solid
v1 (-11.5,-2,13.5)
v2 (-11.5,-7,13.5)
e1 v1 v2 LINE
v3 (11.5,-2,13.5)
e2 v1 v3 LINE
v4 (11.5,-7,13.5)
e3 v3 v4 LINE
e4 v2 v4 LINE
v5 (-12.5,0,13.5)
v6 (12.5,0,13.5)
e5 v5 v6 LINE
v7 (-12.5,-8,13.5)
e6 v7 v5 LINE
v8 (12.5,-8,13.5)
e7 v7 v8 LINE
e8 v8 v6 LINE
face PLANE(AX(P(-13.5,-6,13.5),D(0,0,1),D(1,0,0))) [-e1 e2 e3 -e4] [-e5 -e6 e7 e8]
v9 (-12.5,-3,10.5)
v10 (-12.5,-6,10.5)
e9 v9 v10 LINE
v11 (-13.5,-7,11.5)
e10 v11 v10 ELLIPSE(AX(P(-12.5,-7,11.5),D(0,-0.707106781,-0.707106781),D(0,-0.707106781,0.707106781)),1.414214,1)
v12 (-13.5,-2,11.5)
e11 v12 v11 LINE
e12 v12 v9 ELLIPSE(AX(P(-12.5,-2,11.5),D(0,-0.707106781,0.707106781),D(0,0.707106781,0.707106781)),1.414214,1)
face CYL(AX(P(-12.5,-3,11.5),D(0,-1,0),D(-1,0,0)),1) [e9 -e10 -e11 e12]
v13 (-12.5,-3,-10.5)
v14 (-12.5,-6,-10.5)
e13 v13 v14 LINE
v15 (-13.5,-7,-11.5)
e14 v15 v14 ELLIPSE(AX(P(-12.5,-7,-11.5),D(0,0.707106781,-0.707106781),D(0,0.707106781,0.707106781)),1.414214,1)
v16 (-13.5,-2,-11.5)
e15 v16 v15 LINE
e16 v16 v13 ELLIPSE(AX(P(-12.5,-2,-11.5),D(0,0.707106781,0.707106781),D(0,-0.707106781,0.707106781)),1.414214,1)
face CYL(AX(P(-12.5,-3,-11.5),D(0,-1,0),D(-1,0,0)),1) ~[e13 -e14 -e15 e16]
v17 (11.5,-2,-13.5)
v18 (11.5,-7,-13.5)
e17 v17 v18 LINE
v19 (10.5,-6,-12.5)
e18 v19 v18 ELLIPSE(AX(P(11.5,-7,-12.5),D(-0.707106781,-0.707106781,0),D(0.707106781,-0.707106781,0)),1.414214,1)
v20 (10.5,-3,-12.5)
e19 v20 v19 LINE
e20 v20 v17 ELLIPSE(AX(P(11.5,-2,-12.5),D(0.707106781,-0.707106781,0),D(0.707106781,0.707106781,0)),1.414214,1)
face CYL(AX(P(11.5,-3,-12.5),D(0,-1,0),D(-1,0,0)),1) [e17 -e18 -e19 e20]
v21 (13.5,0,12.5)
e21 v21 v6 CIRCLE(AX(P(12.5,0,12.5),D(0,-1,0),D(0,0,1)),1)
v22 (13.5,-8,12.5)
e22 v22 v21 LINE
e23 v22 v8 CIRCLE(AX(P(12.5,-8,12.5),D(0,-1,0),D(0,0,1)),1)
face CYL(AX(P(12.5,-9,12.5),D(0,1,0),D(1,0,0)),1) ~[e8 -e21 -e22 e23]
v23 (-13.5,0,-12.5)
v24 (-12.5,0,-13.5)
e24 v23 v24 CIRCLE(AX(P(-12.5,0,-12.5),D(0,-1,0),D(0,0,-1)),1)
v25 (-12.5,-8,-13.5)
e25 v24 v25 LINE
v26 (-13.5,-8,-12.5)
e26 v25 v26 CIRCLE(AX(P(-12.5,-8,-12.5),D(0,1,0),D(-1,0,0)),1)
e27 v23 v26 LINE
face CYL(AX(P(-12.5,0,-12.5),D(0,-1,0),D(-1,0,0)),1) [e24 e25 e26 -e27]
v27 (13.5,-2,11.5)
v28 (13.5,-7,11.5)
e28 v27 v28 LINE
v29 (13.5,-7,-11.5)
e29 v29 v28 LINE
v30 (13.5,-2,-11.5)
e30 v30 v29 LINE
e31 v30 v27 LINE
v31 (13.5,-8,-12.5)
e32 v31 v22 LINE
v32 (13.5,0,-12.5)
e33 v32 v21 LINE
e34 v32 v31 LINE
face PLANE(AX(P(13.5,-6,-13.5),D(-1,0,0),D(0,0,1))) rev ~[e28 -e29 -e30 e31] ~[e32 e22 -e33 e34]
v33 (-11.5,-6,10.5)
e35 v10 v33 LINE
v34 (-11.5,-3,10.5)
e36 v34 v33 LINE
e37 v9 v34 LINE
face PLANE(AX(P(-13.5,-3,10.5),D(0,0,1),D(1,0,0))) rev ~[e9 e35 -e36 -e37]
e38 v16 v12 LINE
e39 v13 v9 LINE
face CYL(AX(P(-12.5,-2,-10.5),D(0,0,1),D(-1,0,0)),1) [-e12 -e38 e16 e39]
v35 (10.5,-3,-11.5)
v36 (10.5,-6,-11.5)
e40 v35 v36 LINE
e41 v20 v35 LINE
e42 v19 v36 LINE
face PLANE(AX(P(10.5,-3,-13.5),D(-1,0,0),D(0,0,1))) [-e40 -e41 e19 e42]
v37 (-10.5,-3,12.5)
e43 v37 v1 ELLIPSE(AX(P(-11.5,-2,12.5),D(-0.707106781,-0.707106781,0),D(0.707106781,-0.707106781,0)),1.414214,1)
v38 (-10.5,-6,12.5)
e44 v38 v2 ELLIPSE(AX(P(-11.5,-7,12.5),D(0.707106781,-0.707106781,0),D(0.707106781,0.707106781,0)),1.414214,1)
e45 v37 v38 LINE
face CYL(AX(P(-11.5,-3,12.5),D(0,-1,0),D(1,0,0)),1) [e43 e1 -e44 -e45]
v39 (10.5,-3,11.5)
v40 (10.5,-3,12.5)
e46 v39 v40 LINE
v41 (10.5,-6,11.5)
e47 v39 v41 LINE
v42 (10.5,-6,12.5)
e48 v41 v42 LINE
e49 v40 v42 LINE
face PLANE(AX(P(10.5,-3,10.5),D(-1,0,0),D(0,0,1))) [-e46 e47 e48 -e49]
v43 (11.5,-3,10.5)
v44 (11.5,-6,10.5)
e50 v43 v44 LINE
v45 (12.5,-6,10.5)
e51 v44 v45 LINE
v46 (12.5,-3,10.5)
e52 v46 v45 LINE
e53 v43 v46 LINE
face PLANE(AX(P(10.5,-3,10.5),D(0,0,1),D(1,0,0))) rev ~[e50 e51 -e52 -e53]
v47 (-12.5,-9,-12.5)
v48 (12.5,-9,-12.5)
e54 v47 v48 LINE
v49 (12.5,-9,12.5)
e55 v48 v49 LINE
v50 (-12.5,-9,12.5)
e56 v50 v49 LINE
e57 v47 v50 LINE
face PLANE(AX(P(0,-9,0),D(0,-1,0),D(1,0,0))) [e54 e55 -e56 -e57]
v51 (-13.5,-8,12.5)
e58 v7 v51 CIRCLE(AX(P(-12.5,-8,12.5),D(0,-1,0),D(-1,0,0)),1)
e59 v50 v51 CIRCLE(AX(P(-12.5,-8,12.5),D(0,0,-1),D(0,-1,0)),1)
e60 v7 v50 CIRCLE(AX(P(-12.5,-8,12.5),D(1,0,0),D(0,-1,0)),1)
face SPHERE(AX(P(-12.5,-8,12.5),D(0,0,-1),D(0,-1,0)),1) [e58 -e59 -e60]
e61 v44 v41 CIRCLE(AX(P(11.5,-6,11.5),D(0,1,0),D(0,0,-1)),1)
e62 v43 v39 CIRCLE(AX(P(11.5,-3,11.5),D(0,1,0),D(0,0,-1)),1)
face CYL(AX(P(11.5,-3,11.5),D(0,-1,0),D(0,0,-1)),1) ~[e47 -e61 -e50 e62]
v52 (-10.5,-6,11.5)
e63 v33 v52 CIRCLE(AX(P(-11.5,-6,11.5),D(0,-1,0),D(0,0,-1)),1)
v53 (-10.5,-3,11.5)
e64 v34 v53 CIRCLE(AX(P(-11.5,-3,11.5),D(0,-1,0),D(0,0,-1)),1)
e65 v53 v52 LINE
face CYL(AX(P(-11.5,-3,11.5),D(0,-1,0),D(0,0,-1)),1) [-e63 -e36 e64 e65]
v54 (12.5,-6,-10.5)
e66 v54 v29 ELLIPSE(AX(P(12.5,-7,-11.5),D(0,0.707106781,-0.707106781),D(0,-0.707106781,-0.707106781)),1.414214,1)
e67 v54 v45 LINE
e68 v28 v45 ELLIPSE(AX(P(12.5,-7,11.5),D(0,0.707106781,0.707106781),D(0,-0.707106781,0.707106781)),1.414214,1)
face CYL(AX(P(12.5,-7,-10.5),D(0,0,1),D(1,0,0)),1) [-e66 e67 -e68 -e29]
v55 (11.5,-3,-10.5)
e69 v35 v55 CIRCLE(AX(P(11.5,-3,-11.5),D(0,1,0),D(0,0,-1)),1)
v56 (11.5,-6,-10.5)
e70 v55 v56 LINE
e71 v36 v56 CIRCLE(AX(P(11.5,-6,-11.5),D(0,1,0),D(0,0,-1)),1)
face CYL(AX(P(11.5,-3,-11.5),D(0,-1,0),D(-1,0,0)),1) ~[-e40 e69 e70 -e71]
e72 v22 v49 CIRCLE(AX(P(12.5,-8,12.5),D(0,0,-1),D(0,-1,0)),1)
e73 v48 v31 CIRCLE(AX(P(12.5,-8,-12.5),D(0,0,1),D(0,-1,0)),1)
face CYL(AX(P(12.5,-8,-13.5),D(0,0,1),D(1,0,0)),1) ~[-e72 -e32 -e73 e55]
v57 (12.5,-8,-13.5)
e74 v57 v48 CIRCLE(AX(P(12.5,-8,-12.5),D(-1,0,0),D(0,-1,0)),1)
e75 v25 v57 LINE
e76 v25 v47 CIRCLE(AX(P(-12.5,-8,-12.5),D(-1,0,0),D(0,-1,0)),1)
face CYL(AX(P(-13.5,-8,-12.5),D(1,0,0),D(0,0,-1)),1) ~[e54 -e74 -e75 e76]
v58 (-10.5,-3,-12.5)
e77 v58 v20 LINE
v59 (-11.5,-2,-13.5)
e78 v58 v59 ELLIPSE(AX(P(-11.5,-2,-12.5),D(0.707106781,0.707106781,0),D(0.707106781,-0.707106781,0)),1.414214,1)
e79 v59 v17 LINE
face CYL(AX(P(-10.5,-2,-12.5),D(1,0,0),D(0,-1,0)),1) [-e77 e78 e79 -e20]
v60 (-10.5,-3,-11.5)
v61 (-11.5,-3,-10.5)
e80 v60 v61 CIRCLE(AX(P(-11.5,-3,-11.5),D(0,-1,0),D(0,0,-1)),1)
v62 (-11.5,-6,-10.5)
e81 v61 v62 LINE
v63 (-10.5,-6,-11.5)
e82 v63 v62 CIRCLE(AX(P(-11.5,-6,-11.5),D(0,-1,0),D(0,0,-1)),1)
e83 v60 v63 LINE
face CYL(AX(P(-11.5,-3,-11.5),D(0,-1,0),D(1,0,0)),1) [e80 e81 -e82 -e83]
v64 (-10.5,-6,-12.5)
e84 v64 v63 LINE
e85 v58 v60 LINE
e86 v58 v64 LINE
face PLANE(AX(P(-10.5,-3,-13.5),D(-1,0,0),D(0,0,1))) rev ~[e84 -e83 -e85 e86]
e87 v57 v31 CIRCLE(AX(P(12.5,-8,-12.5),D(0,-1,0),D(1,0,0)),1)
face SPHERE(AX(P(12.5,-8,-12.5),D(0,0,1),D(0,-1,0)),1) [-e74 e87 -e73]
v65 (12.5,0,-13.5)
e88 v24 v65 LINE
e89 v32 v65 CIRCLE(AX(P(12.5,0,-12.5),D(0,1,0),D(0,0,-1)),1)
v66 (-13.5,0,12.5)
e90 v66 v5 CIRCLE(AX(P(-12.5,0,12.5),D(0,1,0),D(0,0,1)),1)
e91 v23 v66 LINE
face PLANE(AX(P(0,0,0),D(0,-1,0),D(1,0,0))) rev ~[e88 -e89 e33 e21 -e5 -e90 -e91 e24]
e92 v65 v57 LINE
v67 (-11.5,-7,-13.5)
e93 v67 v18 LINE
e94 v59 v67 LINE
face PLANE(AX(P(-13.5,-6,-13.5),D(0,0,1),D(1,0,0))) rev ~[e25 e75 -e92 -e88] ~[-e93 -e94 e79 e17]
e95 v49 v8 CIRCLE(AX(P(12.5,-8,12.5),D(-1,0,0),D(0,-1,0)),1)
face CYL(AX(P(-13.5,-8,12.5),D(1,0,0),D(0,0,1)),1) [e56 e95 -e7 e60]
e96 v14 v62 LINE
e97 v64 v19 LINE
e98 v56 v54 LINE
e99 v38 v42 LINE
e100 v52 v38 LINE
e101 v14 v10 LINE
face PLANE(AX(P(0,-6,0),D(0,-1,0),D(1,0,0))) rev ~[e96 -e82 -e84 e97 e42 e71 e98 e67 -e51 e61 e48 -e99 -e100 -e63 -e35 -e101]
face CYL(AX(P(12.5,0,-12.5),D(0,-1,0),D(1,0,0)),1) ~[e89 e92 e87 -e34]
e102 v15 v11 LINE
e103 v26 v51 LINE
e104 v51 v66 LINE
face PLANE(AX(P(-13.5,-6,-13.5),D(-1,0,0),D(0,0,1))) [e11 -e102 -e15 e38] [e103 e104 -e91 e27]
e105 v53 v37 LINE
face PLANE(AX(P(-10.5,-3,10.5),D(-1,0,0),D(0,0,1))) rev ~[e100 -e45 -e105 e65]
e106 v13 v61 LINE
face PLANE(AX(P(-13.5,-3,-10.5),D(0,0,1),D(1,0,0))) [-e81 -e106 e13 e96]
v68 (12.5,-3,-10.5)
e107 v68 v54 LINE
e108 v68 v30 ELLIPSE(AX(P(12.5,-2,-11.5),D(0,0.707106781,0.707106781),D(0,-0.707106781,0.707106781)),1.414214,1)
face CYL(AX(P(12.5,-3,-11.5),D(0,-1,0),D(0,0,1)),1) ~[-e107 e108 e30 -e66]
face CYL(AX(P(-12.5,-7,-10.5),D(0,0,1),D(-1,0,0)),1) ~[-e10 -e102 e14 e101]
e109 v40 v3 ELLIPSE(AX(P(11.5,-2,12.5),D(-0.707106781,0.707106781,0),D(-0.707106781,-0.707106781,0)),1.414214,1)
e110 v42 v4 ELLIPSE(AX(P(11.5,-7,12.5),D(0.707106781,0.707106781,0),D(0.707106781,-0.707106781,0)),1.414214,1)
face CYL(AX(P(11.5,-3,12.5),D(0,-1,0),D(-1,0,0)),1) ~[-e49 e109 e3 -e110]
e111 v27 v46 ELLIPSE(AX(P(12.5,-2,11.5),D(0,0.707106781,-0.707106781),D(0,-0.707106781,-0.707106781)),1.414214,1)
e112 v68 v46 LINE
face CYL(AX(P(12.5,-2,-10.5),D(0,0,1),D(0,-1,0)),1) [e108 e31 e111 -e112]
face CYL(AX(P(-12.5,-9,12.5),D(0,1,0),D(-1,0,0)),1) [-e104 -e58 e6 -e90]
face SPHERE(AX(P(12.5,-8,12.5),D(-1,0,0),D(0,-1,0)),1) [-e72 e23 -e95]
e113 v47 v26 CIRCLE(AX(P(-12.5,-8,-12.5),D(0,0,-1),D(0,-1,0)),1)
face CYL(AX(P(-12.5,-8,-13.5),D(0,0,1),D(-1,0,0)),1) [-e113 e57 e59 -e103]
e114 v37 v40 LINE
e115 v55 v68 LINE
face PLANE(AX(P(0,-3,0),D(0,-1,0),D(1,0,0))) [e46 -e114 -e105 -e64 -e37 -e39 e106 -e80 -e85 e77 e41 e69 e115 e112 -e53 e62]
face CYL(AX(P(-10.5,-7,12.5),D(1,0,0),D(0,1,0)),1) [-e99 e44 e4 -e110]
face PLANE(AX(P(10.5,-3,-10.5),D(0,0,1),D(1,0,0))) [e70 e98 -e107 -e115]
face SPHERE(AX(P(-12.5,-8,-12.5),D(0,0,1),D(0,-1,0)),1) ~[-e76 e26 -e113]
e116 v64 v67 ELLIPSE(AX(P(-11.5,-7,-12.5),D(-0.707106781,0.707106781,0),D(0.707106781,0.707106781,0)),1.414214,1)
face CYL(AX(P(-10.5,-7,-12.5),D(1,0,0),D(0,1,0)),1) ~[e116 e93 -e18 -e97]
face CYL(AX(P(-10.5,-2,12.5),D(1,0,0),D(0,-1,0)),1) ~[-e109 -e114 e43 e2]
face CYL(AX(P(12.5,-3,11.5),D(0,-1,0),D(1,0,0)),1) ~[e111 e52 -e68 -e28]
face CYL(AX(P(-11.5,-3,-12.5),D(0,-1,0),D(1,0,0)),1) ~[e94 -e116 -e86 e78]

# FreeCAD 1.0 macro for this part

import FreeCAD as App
import Part
import Sketcher


def edges_at(feature, points):
    """Names of the edges that pass closest to the given points."""
    edges = feature.Shape.Edges
    near = lambda p: min(range(len(edges)), key=lambda i: edges[i].distToShape(Part.Vertex(*p))[0])
    return sorted({f"Edge{near(p) + 1}" for p in points})

doc = App.newDocument("Part")
body = doc.addObject("PartDesign::Body", "Body")

# Sketch on XZ plane
sketch1 = body.newObject("Sketcher::SketchObject", "Sketch")
sketch1.AttachmentSupport = (doc.getObject("XZ_Plane"), [""])
sketch1.MapMode = "FlatFace"
sketch1.addGeometry([
    Part.LineSegment(App.Vector(-14, 14, 0), App.Vector(-14, -14, 0)),
    Part.LineSegment(App.Vector(-14, -14, 0), App.Vector(14, -14, 0)),
    Part.LineSegment(App.Vector(14, -14, 0), App.Vector(14, 14, 0)),
    Part.LineSegment(App.Vector(14, 14, 0), App.Vector(-14, 14, 0)),
], False)
sketch1.addConstraint([
    Sketcher.Constraint("Coincident", 0, 2, 1, 1),
    Sketcher.Constraint("Coincident", 1, 2, 2, 1),
    Sketcher.Constraint("Coincident", 2, 2, 3, 1),
    Sketcher.Constraint("Coincident", 3, 2, 0, 1),
    Sketcher.Constraint("Vertical", 0),
    Sketcher.Constraint("Horizontal", 1),
    Sketcher.Constraint("Vertical", 2),
    Sketcher.Constraint("Horizontal", 3),
    Sketcher.Constraint("Symmetric", 0, 2, 2, 2, -1, 1),
    Sketcher.Constraint("Equal", 3, 0),
    Sketcher.Constraint("DistanceX", 1, 1, 1, 2, 27.0),
])
pad1 = body.newObject("PartDesign::Pad", "Pad")
pad1.Profile = sketch1
pad1.Length = 3

# Sketch on XZ plane
sketch2 = body.newObject("Sketcher::SketchObject", "Sketch001")
sketch2.AttachmentSupport = (doc.getObject("XZ_Plane"), [""])
sketch2.MapMode = "FlatFace"
sketch2.AttachmentOffset = App.Placement(App.Vector(0, 0, 3), App.Rotation())
sketch2.addGeometry([
    Part.LineSegment(App.Vector(-13.5, 13.5, 0), App.Vector(-13.5, 10.5, 0)),  # 0
    Part.LineSegment(App.Vector(-13.5, 10.5, 0), App.Vector(-10.5, 10.5, 0)),  # 1
    Part.LineSegment(App.Vector(-10.5, 10.5, 0), App.Vector(-10.5, 13.5, 0)),  # 2
    Part.LineSegment(App.Vector(-10.5, 13.5, 0), App.Vector(-13.5, 13.5, 0)),  # 3
    Part.LineSegment(App.Vector(10.5, 13.5, 0), App.Vector(10.5, 10.5, 0)),  # 4
    Part.LineSegment(App.Vector(10.5, 10.5, 0), App.Vector(13.5, 10.5, 0)),  # 5
    Part.LineSegment(App.Vector(13.5, 10.5, 0), App.Vector(13.5, 13.5, 0)),  # 6
    Part.LineSegment(App.Vector(13.5, 13.5, 0), App.Vector(10.5, 13.5, 0)),  # 7
    Part.LineSegment(App.Vector(10.5, -10.5, 0), App.Vector(10.5, -13.5, 0)),  # 8
    Part.LineSegment(App.Vector(10.5, -13.5, 0), App.Vector(13.5, -13.5, 0)),  # 9
    Part.LineSegment(App.Vector(13.5, -13.5, 0), App.Vector(13.5, -10.5, 0)),  # 10
    Part.LineSegment(App.Vector(13.5, -10.5, 0), App.Vector(10.5, -10.5, 0)),  # 11
    Part.LineSegment(App.Vector(-13.5, -10.5, 0), App.Vector(-13.5, -13.5, 0)),  # 12
    Part.LineSegment(App.Vector(-13.5, -13.5, 0), App.Vector(-10.5, -13.5, 0)),  # 13
    Part.LineSegment(App.Vector(-10.5, -13.5, 0), App.Vector(-10.5, -10.5, 0)),  # 14
    Part.LineSegment(App.Vector(-10.5, -10.5, 0), App.Vector(-13.5, -10.5, 0)),  # 15
], False)
sketch2.addConstraint([
    Sketcher.Constraint("Coincident", 0, 2, 1, 1),
    Sketcher.Constraint("Coincident", 1, 2, 2, 1),
    Sketcher.Constraint("Coincident", 2, 2, 3, 1),
    Sketcher.Constraint("Coincident", 3, 2, 0, 1),
    Sketcher.Constraint("Coincident", 4, 2, 5, 1),
    Sketcher.Constraint("Coincident", 5, 2, 6, 1),
    Sketcher.Constraint("Coincident", 6, 2, 7, 1),
    Sketcher.Constraint("Coincident", 7, 2, 4, 1),
    Sketcher.Constraint("Coincident", 8, 2, 9, 1),
    Sketcher.Constraint("Coincident", 9, 2, 10, 1),
    Sketcher.Constraint("Coincident", 10, 2, 11, 1),
    Sketcher.Constraint("Coincident", 11, 2, 8, 1),
    Sketcher.Constraint("Coincident", 12, 2, 13, 1),
    Sketcher.Constraint("Coincident", 13, 2, 14, 1),
    Sketcher.Constraint("Coincident", 14, 2, 15, 1),
    Sketcher.Constraint("Coincident", 15, 2, 12, 1),
    Sketcher.Constraint("Vertical", 0),
    Sketcher.Constraint("Horizontal", 1),
    Sketcher.Constraint("Vertical", 2),
    Sketcher.Constraint("Horizontal", 3),
    Sketcher.Constraint("Vertical", 4),
    Sketcher.Constraint("Horizontal", 5),
    Sketcher.Constraint("Vertical", 6),
    Sketcher.Constraint("Horizontal", 7),
    Sketcher.Constraint("Vertical", 8),
    Sketcher.Constraint("Horizontal", 9),
    Sketcher.Constraint("Vertical", 10),
    Sketcher.Constraint("Horizontal", 11),
    Sketcher.Constraint("Vertical", 12),
    Sketcher.Constraint("Horizontal", 13),
    Sketcher.Constraint("Vertical", 14),
    Sketcher.Constraint("Horizontal", 15),
    Sketcher.Constraint("Symmetric", 2, 2, 8, 2, -1, 1),
    Sketcher.Constraint("Symmetric", 0, 2, 10, 2, -1, 1),
    Sketcher.Constraint("Symmetric", 6, 2, 12, 2, -1, 1),
    Sketcher.Constraint("Symmetric", 4, 2, 14, 2, -1, 1),
    Sketcher.Constraint("Symmetric", 1, 2, 4, 2, -2),
    Sketcher.Constraint("Symmetric", 3, 2, 6, 2, -2),
    Sketcher.Constraint("Equal", 15, 0),
    Sketcher.Constraint("DistanceX", 1, 1, 1, 2, 3.0),
    Sketcher.Constraint("DistanceX", 1, 2, 4, 2, 21.0),
    Sketcher.Constraint("DistanceY", 8, 2, 4, 2, 24.0),
])
pad2 = body.newObject("PartDesign::Pad", "Pad001")
pad2.Profile = sketch2
pad2.Length = 3

# Sketch on XZ plane
sketch3 = body.newObject("Sketcher::SketchObject", "Sketch002")
sketch3.AttachmentSupport = (doc.getObject("XZ_Plane"), [""])
sketch3.MapMode = "FlatFace"
sketch3.AttachmentOffset = App.Placement(App.Vector(0, 0, 6), App.Rotation())
sketch3.addGeometry([
    Part.LineSegment(App.Vector(-14, 14, 0), App.Vector(-14, -14, 0)),
    Part.LineSegment(App.Vector(-14, -14, 0), App.Vector(14, -14, 0)),
    Part.LineSegment(App.Vector(14, -14, 0), App.Vector(14, 14, 0)),
    Part.LineSegment(App.Vector(14, 14, 0), App.Vector(-14, 14, 0)),
], False)
sketch3.addConstraint([
    Sketcher.Constraint("Coincident", 0, 2, 1, 1),
    Sketcher.Constraint("Coincident", 1, 2, 2, 1),
    Sketcher.Constraint("Coincident", 2, 2, 3, 1),
    Sketcher.Constraint("Coincident", 3, 2, 0, 1),
    Sketcher.Constraint("Vertical", 0),
    Sketcher.Constraint("Horizontal", 1),
    Sketcher.Constraint("Vertical", 2),
    Sketcher.Constraint("Horizontal", 3),
    Sketcher.Constraint("Symmetric", 0, 2, 2, 2, -1, 1),
    Sketcher.Constraint("Equal", 3, 0),
    Sketcher.Constraint("DistanceX", 1, 1, 1, 2, 27.0),
])
pad3 = body.newObject("PartDesign::Pad", "Pad002")
pad3.Profile = sketch3
pad3.Length = 3
doc.recompute()

fillet = body.newObject("PartDesign::Fillet", "Fillet")
fillet.Base = (pad3, edges_at(pad3, [
    (-13.5, -9, 0),
    (0, -9, 13.5),
    (13.5, -9, 0),
    (0, -9, -13.5),
    (-13.5, -3, 0),
    (-13.5, -6, 0),
    (-13.5, -4.5, 10.5),
    (-13.5, -4.5, -10.5),
    (0, -6, -13.5),
    (-10.5, -4.5, -13.5),
    (0, -3, -13.5),
    (10.5, -4.5, -13.5),
    (13.5, -4.5, -10.5),
    (13.5, -6, 0),
    (13.5, -4.5, 10.5),
    (13.5, -3, 0),
    (10.5, -4.5, 13.5),
    (0, -6, 13.5),
    (-10.5, -4.5, 13.5),
    (0, -3, 13.5),
    (10.5, -4.5, 10.5),
    (10.5, -4.5, -10.5),
    (-10.5, -4.5, -10.5),
    (-10.5, -4.5, 10.5),
    (-13.5, -4.5, 13.5),
    (13.5, -4.5, 13.5),
    (13.5, -4.5, -13.5),
    (-13.5, -4.5, -13.5),
]))
fillet.Radius = 1

doc.recompute()
